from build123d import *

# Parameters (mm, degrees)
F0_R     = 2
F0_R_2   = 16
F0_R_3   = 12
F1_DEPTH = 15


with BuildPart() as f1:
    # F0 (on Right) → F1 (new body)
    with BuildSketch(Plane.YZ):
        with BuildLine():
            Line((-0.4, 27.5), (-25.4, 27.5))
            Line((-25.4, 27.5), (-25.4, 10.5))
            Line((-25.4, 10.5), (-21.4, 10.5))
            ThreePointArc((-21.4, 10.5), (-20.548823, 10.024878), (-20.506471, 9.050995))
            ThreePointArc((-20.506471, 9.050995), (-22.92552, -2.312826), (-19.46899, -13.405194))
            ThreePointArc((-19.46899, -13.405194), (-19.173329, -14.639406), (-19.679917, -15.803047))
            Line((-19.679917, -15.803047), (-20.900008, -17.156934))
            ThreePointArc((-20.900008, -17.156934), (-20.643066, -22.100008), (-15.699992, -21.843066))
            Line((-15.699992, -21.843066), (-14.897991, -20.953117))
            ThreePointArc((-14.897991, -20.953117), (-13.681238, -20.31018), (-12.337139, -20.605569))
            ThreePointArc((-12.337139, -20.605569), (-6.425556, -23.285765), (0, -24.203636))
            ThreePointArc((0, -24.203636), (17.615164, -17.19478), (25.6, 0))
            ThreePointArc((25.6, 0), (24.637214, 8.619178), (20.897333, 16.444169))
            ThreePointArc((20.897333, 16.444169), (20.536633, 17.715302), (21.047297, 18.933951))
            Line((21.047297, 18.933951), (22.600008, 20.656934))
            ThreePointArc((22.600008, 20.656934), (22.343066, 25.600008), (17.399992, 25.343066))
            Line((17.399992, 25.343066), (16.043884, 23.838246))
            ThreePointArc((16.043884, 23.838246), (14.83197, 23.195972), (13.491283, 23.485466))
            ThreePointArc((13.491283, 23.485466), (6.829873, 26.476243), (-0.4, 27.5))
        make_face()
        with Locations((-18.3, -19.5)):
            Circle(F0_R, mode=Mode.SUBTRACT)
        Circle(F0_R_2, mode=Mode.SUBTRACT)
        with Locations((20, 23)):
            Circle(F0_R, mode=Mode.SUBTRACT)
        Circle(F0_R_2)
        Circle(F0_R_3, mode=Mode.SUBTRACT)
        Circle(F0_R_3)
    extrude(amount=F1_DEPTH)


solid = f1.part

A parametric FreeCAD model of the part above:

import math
import FreeCAD as App
import Part
import Sketcher

doc = App.newDocument("Part")
body = doc.addObject("PartDesign::Body", "Body")

sketch1 = doc.addObject("Sketcher::SketchObject", "Sketch")
body.addObject(sketch1)
sketch1.AttachmentSupport = (doc.YZ_Plane, [""])
sketch1.MapMode = "FlatFace"
sketch1.addGeometry([
    Part.LineSegment(App.Vector(-0.4, 27.5, 0), App.Vector(-25.4, 27.5, 0)),
    Part.LineSegment(App.Vector(-25.4, 27.5, 0), App.Vector(-25.4, 10.5, 0)),
    Part.LineSegment(App.Vector(-25.4, 10.5, 0), App.Vector(-21.4, 10.5, 0)),
    Part.ArcOfCircle(Part.Circle(App.Vector(-21.4, 9.5, 0), App.Vector(0, 0, 1), 1), math.radians(-27), math.radians(90)),
    Part.ArcOfCircle(Part.Circle(App.Vector(0, -1.3, 0), App.Vector(0, 0, 1), 22.9), math.radians(153), math.radians(212)),
    Part.ArcOfCircle(Part.Circle(App.Vector(-21.2, -14.5, 0), App.Vector(0, 0, 1), 2), math.radians(-42), math.radians(32)),
    Part.LineSegment(App.Vector(-19.7, -15.8, 0), App.Vector(-20.9, -17.2, 0)),
    Part.ArcOfCircle(Part.Circle(App.Vector(-18.3, -19.5, 0), App.Vector(0, 0, 1), 3.5), math.radians(138), math.radians(318)),
    Part.LineSegment(App.Vector(-15.7, -21.8, 0), App.Vector(-14.9, -21, 0)),
    Part.ArcOfCircle(Part.Circle(App.Vector(-13.4, -22.3, 0), App.Vector(0, 0, 1), 2), math.radians(57), math.radians(138)),
    Part.ArcOfCircle(Part.Circle(App.Vector(0, -1.3, 0), App.Vector(0, 0, 1), 22.9), math.radians(-123), math.radians(-90)),
    Part.ArcOfCircle(Part.Circle(App.Vector(0, 1.4, 0), App.Vector(0, 0, 1), 25.6), math.radians(-90), math.radians(-3)),
    Part.ArcOfCircle(Part.Circle(App.Vector(-0.4, 1.5, 0), App.Vector(0, 0, 1), 26), math.radians(-3), math.radians(35)),
    Part.ArcOfCircle(Part.Circle(App.Vector(22.5, 17.6, 0), App.Vector(0, 0, 1), 2), math.radians(138), math.radians(215)),
    Part.LineSegment(App.Vector(21, 18.9, 0), App.Vector(22.6, 20.7, 0)),
    Part.ArcOfCircle(Part.Circle(App.Vector(20, 23, 0), App.Vector(0, 0, 1), 3.5), math.radians(-42), math.radians(138)),
    Part.LineSegment(App.Vector(17.4, 25.3, 0), App.Vector(16, 23.8, 0)),
    Part.ArcOfCircle(Part.Circle(App.Vector(14.6, 25.2, 0), App.Vector(0, 0, 1), 2), math.radians(-122), math.radians(-42)),
    Part.ArcOfCircle(Part.Circle(App.Vector(-0.4, 1.5, 0), App.Vector(0, 0, 1), 26), math.radians(58), math.radians(90)),
    Part.Circle(App.Vector(-18.3, -19.5, 0), App.Vector(0, 0, 1), 2),
    Part.Circle(App.Vector(20, 23, 0), App.Vector(0, 0, 1), 2),
], False)
sketch1.addConstraint([
    Sketcher.Constraint("Coincident", 0, 2, 1, 1),
    Sketcher.Constraint("Coincident", 1, 2, 2, 1),
    Sketcher.Constraint("Tangent", 2, 2, 3, 2),
    Sketcher.Constraint("Tangent", 3, 1, 4, 1),
    Sketcher.Constraint("Tangent", 4, 2, 5, 2),
    Sketcher.Constraint("Tangent", 5, 1, 6, 1),
    Sketcher.Constraint("Tangent", 6, 2, 7, 1),
    Sketcher.Constraint("Tangent", 7, 2, 8, 1),
    Sketcher.Constraint("Tangent", 8, 2, 9, 2),
    Sketcher.Constraint("Tangent", 9, 1, 10, 1),
    Sketcher.Constraint("Tangent", 10, 2, 11, 1),
    Sketcher.Constraint("Tangent", 11, 2, 12, 1),
    Sketcher.Constraint("Tangent", 12, 2, 13, 2),
    Sketcher.Constraint("Tangent", 13, 1, 14, 1),
    Sketcher.Constraint("Tangent", 14, 2, 15, 1),
    Sketcher.Constraint("Tangent", 15, 2, 16, 1),
    Sketcher.Constraint("Tangent", 16, 2, 17, 2),
    Sketcher.Constraint("Tangent", 17, 1, 18, 1),
    Sketcher.Constraint("Tangent", 18, 2, 0, 1),
    Sketcher.Constraint("Horizontal", 0),
    Sketcher.Constraint("Vertical", 1),
    Sketcher.Constraint("Horizontal", 2),
    Sketcher.Constraint("Coincident", 19, 3, 7, 3),
    Sketcher.Constraint("Coincident", 20, 3, 15, 3),
    Sketcher.Constraint("Equal", 5, 9),
    Sketcher.Constraint("Equal", 7, 15),
    Sketcher.Constraint("Equal", 9, 17),
    Sketcher.Constraint("Equal", 17, 19),
    Sketcher.Constraint("Equal", 19, 20),
    Sketcher.Constraint("PointOnObject", 4, 3, -2),
    Sketcher.Constraint("PointOnObject", 11, 3, -2),
    Sketcher.Constraint("PointOnObject", 10, 2, -2),
    Sketcher.Constraint("PointOnObject", 11, 2, -1),
    Sketcher.Constraint("Parallel", 6, 8),
    Sketcher.Constraint("Parallel", 8, 14),
    Sketcher.Constraint("Parallel", 14, 16),
    Sketcher.Constraint("Diameter", 19, 4.0),
    Sketcher.Constraint("Radius", 3, 1.0),
    Sketcher.Constraint("Radius", 7, 3.5),
    Sketcher.Constraint("DistanceX", 0, 2, 0, 1, 25.0),
    Sketcher.Constraint("DistanceX", 2, 1, 2, 2, 4.0),
    Sketcher.Constraint("DistanceY", 1, 2, 1, 1, 17.0),
    Sketcher.Constraint("DistanceX", -1, 1, 15, 3, 20.0),
    Sketcher.Constraint("DistanceY", -1, 1, 15, 3, 23.0),
    Sketcher.Constraint("DistanceY", 7, 3, 3, 3, 29.0),
    Sketcher.Constraint("DistanceX", 3, 3, -1, 1, 21.400001),
    Sketcher.Constraint("DistanceY", -1, 1, 3, 3, 9.5),
    Sketcher.Constraint("DistanceX", 7, 3, -1, 1, 18.3),
    Sketcher.Constraint("DistanceX", -1, 1, 11, 2, 25.6),
    Sketcher.Constraint("Radius", 18, 26.040901),
    Sketcher.Constraint("Radius", 10, 22.94996),
    Sketcher.Constraint("Radius", 11, 25.640279),
    Sketcher.Constraint("Radius", 4, 22.949975),
    Sketcher.Constraint("Radius", 12, 26.040916),
    Sketcher.Constraint("Radius", 13, 1.999997),
    Sketcher.Constraint("DistanceX", 7, 2, 8, 2, 0.802001),
])
pad1 = doc.addObject("PartDesign::Pad", "Pad")
body.addObject(pad1)
pad1.Profile = sketch1
pad1.Length = 15

doc.recompute()
